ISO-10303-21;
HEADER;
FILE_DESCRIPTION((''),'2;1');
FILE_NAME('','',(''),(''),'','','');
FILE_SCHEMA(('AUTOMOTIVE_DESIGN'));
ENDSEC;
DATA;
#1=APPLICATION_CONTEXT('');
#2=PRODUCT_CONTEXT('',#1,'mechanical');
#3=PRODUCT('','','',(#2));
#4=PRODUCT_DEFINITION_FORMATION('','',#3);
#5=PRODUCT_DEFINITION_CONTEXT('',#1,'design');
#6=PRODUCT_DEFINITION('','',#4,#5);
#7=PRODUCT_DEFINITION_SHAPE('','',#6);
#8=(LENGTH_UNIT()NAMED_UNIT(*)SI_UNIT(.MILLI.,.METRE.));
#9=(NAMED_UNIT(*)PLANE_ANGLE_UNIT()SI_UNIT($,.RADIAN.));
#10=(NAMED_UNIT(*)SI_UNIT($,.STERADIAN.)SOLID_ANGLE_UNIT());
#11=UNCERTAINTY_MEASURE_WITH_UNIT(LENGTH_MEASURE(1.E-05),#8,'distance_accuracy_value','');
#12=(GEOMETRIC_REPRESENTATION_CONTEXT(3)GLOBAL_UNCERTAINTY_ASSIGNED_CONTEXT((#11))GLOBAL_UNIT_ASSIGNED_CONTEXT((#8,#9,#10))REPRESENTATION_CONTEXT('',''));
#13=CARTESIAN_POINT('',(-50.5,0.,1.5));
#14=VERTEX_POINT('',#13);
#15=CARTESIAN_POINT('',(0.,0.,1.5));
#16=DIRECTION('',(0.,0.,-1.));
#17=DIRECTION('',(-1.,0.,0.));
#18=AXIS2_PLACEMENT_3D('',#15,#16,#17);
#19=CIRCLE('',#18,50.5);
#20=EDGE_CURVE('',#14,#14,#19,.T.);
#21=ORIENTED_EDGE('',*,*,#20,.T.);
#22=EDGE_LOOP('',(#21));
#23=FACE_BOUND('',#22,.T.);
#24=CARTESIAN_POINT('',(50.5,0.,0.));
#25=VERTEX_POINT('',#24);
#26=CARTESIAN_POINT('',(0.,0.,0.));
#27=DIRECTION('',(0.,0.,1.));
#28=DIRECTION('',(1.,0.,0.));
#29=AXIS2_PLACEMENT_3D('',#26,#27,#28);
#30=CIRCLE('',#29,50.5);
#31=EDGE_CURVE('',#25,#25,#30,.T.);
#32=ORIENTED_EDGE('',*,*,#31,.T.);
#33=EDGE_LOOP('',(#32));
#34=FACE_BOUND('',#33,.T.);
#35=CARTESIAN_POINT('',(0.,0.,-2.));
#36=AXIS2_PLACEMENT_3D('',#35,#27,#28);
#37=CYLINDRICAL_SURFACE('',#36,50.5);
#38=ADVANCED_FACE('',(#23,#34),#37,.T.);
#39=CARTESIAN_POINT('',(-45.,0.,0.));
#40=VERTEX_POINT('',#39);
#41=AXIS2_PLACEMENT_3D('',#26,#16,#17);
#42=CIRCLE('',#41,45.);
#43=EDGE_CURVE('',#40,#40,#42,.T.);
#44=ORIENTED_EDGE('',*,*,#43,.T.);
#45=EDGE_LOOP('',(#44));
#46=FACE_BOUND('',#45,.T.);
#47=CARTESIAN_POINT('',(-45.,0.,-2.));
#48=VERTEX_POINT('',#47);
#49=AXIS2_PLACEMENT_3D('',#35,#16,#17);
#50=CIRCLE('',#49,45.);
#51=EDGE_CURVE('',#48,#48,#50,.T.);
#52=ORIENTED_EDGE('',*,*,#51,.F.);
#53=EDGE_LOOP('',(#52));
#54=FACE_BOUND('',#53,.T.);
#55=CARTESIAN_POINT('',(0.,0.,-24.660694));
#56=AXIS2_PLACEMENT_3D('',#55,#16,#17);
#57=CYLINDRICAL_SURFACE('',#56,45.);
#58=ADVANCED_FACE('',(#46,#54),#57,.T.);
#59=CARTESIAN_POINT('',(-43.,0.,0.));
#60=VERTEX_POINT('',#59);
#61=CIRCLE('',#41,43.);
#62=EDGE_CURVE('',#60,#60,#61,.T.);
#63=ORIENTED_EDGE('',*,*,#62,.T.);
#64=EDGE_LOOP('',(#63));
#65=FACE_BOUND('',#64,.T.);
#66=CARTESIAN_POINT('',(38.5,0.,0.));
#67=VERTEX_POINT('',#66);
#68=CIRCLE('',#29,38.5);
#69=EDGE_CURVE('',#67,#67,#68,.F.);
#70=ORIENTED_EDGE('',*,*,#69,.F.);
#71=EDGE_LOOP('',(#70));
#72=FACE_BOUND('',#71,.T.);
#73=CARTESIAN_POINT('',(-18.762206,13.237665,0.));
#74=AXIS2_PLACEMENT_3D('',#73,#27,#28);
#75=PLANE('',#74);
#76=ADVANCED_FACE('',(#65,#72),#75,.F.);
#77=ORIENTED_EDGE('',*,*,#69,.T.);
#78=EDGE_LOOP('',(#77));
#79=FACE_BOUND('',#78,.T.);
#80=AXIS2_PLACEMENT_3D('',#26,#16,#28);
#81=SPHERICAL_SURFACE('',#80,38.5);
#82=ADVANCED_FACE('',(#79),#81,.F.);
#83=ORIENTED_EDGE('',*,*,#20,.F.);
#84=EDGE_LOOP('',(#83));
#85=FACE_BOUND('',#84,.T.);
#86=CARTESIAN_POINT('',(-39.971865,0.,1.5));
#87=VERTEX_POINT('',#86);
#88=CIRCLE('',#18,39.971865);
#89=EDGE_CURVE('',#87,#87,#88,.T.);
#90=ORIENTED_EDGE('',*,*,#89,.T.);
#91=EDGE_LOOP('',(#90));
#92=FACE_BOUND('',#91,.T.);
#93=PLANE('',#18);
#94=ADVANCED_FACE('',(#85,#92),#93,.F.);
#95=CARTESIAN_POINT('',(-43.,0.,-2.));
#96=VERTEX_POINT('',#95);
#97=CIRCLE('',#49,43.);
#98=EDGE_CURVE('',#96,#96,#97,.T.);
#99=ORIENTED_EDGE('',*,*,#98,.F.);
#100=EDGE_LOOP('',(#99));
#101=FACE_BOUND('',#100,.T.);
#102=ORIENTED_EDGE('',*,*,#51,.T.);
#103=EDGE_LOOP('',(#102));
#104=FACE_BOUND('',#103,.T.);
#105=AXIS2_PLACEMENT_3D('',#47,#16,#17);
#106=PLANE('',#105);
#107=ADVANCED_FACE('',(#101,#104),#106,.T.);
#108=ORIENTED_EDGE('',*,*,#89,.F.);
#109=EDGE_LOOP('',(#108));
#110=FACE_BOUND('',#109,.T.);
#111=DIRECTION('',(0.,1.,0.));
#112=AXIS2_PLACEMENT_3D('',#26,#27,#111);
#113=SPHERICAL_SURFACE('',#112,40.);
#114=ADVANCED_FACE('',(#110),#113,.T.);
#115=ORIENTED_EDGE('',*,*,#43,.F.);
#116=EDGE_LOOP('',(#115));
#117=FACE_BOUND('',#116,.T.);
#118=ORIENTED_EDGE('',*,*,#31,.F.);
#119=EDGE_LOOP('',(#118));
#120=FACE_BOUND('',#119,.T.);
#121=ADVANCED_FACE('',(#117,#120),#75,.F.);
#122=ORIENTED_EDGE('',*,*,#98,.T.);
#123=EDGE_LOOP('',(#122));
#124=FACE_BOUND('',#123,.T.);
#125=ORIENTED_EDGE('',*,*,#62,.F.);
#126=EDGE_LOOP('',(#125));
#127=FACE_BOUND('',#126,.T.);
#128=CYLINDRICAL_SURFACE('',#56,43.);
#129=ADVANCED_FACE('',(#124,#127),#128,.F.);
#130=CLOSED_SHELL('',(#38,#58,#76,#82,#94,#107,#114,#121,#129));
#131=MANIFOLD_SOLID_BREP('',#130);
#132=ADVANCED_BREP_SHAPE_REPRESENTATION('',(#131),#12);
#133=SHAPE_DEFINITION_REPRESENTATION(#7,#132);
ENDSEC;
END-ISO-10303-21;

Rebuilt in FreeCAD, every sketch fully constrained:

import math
import FreeCAD as App
import Part
import Sketcher
from FreeCAD import Vector
Q = App.Units.Quantity


def add_polygon(sketch, points):
    """Adds a closed chain of lines whose ends are joined by coincident constraints."""
    first, n = sketch.GeometryCount, len(points)
    for a, b in zip(points, points[1:] + points[:1]):
        sketch.addGeometry(Part.LineSegment(App.Vector(*a, 0), App.Vector(*b, 0)), False)
    for i in range(n):
        sketch.addConstraint(Sketcher.Constraint("Coincident", first + i, 2, first + (i + 1) % n, 1))

doc = App.newDocument("Part")
body = doc.addObject("PartDesign::Body", "Body")

# Sketch on YZ plane
sketch1 = body.newObject("Sketcher::SketchObject", "Sketch")
sketch1.AttachmentSupport = (doc.getObject("YZ_Plane"), [""])
sketch1.MapMode = "FlatFace"
sketch1.addGeometry([
    Part.LineSegment(Vector(0, 40, 0), Vector(0, -40, 0)),
    Part.ArcOfCircle(Part.Circle(Vector(0, 0, 0), Vector(0, 0, 1), 40), math.radians(-90), math.radians(90)),
], False)
sketch1.addConstraint([
    Sketcher.Constraint("Coincident", 0, 1, 1, 2),
    Sketcher.Constraint("Coincident", 1, 1, 0, 2),
    Sketcher.Constraint("Vertical", 0),
    Sketcher.Constraint("Coincident", 1, 3, -1, 1),
    Sketcher.Constraint("PointOnObject", 0, 1, -2),
    Sketcher.Constraint("Radius", 1, Q("40 mm")),
])
revolution = body.newObject("PartDesign::Revolution", "Revolution")
revolution.Profile = sketch1
revolution.ReferenceAxis = (sketch1, ["V_Axis"])
revolution.Angle = 360

# Sketch on XY plane
sketch2 = body.newObject("Sketcher::SketchObject", "Sketch001")
sketch2.AttachmentSupport = (doc.getObject("XY_Plane"), [""])
sketch2.MapMode = "FlatFace"
sketch2.addGeometry(Part.Circle(Vector(-19, 13, 0), Vector(0, 0, 1), 102), False)
sketch2.addConstraint([
    Sketcher.Constraint("Diameter", 0, Q("203.082032 mm")),
    Sketcher.Constraint("DistanceX", 0, 3, -1, 1, Q("18.762206 mm")),
    Sketcher.Constraint("DistanceY", -1, 1, 0, 3, Q("13.237665 mm")),
])
pocket1 = body.newObject("PartDesign::Pocket", "Pocket")
pocket1.Profile = sketch2
pocket1.Length = 92

# Sketch on XZ plane
sketch3 = body.newObject("Sketcher::SketchObject", "Sketch002")
sketch3.AttachmentSupport = (doc.getObject("XZ_Plane"), [""])
sketch3.MapMode = "FlatFace"
sketch3.addGeometry([
    Part.LineSegment(Vector(0, -38, 0), Vector(0, 38, 0)),
    Part.ArcOfCircle(Part.Circle(Vector(0, 0, 0), Vector(0, 0, 1), 38), math.radians(-90), math.radians(90)),
], False)
sketch3.addConstraint([
    Sketcher.Constraint("Coincident", 0, 1, 1, 1),
    Sketcher.Constraint("Coincident", 1, 2, 0, 2),
    Sketcher.Constraint("Vertical", 0),
    Sketcher.Constraint("Coincident", 1, 3, -1, 1),
    Sketcher.Constraint("PointOnObject", 0, 1, -2),
    Sketcher.Constraint("Radius", 1, Q("38.5 mm")),
])
groove = body.newObject("PartDesign::Groove", "Groove")
groove.Profile = sketch3
groove.ReferenceAxis = (sketch3, ["V_Axis"])
groove.Angle = 360

# Sketch on XY plane
sketch4 = body.newObject("Sketcher::SketchObject", "Sketch003")
sketch4.AttachmentSupport = (doc.getObject("XY_Plane"), [""])
sketch4.MapMode = "FlatFace"
sketch4.addGeometry([
    Part.Circle(Vector(0, 0, 0), Vector(0, 0, 1), 60),
    Part.Circle(Vector(0, 0, 0), Vector(0, 0, 1), 39),
], False)
sketch4.addConstraint([
    Sketcher.Constraint("Coincident", 0, 3, -1, 1),
    Sketcher.Constraint("Coincident", 1, 3, -1, 1),
    Sketcher.Constraint("Diameter", 0, Q("120 mm")),
    Sketcher.Constraint("Diameter", 1, Q("78 mm")),
])
pad1 = body.newObject("PartDesign::Pad", "Pad")
pad1.Profile = sketch4
pad1.Length = 1.5

# Sketch on XZ plane
sketch5 = body.newObject("Sketcher::SketchObject", "Sketch004")
sketch5.AttachmentSupport = (doc.getObject("XZ_Plane"), [""])
sketch5.MapMode = "FlatFace"
add_polygon(sketch5, [(-45, -2), (-45, 0), (-43, 0), (-43, -2)])  # lines 0-3
sketch5.addConstraint([
    Sketcher.Constraint("Vertical", 0),
    Sketcher.Constraint("Horizontal", 1),
    Sketcher.Constraint("Vertical", 2),
    Sketcher.Constraint("Horizontal", 3),
    Sketcher.Constraint("PointOnObject", 0, 2, -1),
    Sketcher.Constraint("Equal", 3, 0),
    Sketcher.Constraint("DistanceX", 1, 1, 1, 2, Q("2 mm")),
    Sketcher.Constraint("DistanceX", 0, 2, -1, 1, Q("45 mm")),
])
revolution2 = body.newObject("PartDesign::Revolution", "Revolution001")
revolution2.Profile = sketch5
revolution2.ReferenceAxis = (sketch5, ["V_Axis"])
revolution2.Angle = 360

# Sketch on XY plane
sketch6 = body.newObject("Sketcher::SketchObject", "Sketch005")
sketch6.AttachmentSupport = (doc.getObject("XY_Plane"), [""])
sketch6.MapMode = "FlatFace"
add_polygon(sketch6, [(78, 78), (78, -78), (-78, -78), (-78, 78)])  # lines 0-3
sketch6.addGeometry(Part.Circle(Vector(0, 0, 0), Vector(0, 0, 1), 52), False)  # 4
sketch6.addConstraint([
    Sketcher.Constraint("Vertical", 0),
    Sketcher.Constraint("Horizontal", 1),
    Sketcher.Constraint("Vertical", 2),
    Sketcher.Constraint("Horizontal", 3),
    Sketcher.Constraint("Coincident", 4, 3, -1, 1),
    Sketcher.Constraint("Symmetric", 0, 2, 2, 2, -1, 1),
    Sketcher.Constraint("Equal", 3, 0),
    Sketcher.Constraint("Diameter", 4, Q("105 mm")),
    Sketcher.Constraint("DistanceX", 1, 2, 1, 1, Q("156.966 mm")),
])
pocket2 = body.newObject("PartDesign::Pocket", "Pocket001")
pocket2.Profile = sketch6
pocket2.Type = "ThroughAll"
pocket2.Midplane = True

# Sketch on XY plane
sketch7 = body.newObject("Sketcher::SketchObject", "Sketch006")
sketch7.AttachmentSupport = (doc.getObject("XY_Plane"), [""])
sketch7.MapMode = "FlatFace"
sketch7.AttachmentOffset = App.Placement(Vector(0, 0, 1.5), App.Rotation())
add_polygon(sketch7, [(-69, 69), (-69, -69), (69, -69), (69, 69)])  # lines 0-3
sketch7.addGeometry(Part.Circle(Vector(0, 0, 0), Vector(0, 0, 1), 50), False)  # 4
sketch7.addConstraint([
    Sketcher.Constraint("Vertical", 0),
    Sketcher.Constraint("Horizontal", 1),
    Sketcher.Constraint("Vertical", 2),
    Sketcher.Constraint("Horizontal", 3),
    Sketcher.Constraint("Coincident", 4, 3, -1, 1),
    Sketcher.Constraint("Symmetric", 0, 2, 2, 2, -1, 1),
    Sketcher.Constraint("Equal", 3, 0),
    Sketcher.Constraint("Diameter", 4, Q("101 mm")),
    Sketcher.Constraint("DistanceX", 1, 1, 1, 2, Q("137.864 mm")),
])
pocket3 = body.newObject("PartDesign::Pocket", "Pocket002")
pocket3.Profile = sketch7
pocket3.Type = "ThroughAll"
pocket3.Midplane = True

doc.recompute()
